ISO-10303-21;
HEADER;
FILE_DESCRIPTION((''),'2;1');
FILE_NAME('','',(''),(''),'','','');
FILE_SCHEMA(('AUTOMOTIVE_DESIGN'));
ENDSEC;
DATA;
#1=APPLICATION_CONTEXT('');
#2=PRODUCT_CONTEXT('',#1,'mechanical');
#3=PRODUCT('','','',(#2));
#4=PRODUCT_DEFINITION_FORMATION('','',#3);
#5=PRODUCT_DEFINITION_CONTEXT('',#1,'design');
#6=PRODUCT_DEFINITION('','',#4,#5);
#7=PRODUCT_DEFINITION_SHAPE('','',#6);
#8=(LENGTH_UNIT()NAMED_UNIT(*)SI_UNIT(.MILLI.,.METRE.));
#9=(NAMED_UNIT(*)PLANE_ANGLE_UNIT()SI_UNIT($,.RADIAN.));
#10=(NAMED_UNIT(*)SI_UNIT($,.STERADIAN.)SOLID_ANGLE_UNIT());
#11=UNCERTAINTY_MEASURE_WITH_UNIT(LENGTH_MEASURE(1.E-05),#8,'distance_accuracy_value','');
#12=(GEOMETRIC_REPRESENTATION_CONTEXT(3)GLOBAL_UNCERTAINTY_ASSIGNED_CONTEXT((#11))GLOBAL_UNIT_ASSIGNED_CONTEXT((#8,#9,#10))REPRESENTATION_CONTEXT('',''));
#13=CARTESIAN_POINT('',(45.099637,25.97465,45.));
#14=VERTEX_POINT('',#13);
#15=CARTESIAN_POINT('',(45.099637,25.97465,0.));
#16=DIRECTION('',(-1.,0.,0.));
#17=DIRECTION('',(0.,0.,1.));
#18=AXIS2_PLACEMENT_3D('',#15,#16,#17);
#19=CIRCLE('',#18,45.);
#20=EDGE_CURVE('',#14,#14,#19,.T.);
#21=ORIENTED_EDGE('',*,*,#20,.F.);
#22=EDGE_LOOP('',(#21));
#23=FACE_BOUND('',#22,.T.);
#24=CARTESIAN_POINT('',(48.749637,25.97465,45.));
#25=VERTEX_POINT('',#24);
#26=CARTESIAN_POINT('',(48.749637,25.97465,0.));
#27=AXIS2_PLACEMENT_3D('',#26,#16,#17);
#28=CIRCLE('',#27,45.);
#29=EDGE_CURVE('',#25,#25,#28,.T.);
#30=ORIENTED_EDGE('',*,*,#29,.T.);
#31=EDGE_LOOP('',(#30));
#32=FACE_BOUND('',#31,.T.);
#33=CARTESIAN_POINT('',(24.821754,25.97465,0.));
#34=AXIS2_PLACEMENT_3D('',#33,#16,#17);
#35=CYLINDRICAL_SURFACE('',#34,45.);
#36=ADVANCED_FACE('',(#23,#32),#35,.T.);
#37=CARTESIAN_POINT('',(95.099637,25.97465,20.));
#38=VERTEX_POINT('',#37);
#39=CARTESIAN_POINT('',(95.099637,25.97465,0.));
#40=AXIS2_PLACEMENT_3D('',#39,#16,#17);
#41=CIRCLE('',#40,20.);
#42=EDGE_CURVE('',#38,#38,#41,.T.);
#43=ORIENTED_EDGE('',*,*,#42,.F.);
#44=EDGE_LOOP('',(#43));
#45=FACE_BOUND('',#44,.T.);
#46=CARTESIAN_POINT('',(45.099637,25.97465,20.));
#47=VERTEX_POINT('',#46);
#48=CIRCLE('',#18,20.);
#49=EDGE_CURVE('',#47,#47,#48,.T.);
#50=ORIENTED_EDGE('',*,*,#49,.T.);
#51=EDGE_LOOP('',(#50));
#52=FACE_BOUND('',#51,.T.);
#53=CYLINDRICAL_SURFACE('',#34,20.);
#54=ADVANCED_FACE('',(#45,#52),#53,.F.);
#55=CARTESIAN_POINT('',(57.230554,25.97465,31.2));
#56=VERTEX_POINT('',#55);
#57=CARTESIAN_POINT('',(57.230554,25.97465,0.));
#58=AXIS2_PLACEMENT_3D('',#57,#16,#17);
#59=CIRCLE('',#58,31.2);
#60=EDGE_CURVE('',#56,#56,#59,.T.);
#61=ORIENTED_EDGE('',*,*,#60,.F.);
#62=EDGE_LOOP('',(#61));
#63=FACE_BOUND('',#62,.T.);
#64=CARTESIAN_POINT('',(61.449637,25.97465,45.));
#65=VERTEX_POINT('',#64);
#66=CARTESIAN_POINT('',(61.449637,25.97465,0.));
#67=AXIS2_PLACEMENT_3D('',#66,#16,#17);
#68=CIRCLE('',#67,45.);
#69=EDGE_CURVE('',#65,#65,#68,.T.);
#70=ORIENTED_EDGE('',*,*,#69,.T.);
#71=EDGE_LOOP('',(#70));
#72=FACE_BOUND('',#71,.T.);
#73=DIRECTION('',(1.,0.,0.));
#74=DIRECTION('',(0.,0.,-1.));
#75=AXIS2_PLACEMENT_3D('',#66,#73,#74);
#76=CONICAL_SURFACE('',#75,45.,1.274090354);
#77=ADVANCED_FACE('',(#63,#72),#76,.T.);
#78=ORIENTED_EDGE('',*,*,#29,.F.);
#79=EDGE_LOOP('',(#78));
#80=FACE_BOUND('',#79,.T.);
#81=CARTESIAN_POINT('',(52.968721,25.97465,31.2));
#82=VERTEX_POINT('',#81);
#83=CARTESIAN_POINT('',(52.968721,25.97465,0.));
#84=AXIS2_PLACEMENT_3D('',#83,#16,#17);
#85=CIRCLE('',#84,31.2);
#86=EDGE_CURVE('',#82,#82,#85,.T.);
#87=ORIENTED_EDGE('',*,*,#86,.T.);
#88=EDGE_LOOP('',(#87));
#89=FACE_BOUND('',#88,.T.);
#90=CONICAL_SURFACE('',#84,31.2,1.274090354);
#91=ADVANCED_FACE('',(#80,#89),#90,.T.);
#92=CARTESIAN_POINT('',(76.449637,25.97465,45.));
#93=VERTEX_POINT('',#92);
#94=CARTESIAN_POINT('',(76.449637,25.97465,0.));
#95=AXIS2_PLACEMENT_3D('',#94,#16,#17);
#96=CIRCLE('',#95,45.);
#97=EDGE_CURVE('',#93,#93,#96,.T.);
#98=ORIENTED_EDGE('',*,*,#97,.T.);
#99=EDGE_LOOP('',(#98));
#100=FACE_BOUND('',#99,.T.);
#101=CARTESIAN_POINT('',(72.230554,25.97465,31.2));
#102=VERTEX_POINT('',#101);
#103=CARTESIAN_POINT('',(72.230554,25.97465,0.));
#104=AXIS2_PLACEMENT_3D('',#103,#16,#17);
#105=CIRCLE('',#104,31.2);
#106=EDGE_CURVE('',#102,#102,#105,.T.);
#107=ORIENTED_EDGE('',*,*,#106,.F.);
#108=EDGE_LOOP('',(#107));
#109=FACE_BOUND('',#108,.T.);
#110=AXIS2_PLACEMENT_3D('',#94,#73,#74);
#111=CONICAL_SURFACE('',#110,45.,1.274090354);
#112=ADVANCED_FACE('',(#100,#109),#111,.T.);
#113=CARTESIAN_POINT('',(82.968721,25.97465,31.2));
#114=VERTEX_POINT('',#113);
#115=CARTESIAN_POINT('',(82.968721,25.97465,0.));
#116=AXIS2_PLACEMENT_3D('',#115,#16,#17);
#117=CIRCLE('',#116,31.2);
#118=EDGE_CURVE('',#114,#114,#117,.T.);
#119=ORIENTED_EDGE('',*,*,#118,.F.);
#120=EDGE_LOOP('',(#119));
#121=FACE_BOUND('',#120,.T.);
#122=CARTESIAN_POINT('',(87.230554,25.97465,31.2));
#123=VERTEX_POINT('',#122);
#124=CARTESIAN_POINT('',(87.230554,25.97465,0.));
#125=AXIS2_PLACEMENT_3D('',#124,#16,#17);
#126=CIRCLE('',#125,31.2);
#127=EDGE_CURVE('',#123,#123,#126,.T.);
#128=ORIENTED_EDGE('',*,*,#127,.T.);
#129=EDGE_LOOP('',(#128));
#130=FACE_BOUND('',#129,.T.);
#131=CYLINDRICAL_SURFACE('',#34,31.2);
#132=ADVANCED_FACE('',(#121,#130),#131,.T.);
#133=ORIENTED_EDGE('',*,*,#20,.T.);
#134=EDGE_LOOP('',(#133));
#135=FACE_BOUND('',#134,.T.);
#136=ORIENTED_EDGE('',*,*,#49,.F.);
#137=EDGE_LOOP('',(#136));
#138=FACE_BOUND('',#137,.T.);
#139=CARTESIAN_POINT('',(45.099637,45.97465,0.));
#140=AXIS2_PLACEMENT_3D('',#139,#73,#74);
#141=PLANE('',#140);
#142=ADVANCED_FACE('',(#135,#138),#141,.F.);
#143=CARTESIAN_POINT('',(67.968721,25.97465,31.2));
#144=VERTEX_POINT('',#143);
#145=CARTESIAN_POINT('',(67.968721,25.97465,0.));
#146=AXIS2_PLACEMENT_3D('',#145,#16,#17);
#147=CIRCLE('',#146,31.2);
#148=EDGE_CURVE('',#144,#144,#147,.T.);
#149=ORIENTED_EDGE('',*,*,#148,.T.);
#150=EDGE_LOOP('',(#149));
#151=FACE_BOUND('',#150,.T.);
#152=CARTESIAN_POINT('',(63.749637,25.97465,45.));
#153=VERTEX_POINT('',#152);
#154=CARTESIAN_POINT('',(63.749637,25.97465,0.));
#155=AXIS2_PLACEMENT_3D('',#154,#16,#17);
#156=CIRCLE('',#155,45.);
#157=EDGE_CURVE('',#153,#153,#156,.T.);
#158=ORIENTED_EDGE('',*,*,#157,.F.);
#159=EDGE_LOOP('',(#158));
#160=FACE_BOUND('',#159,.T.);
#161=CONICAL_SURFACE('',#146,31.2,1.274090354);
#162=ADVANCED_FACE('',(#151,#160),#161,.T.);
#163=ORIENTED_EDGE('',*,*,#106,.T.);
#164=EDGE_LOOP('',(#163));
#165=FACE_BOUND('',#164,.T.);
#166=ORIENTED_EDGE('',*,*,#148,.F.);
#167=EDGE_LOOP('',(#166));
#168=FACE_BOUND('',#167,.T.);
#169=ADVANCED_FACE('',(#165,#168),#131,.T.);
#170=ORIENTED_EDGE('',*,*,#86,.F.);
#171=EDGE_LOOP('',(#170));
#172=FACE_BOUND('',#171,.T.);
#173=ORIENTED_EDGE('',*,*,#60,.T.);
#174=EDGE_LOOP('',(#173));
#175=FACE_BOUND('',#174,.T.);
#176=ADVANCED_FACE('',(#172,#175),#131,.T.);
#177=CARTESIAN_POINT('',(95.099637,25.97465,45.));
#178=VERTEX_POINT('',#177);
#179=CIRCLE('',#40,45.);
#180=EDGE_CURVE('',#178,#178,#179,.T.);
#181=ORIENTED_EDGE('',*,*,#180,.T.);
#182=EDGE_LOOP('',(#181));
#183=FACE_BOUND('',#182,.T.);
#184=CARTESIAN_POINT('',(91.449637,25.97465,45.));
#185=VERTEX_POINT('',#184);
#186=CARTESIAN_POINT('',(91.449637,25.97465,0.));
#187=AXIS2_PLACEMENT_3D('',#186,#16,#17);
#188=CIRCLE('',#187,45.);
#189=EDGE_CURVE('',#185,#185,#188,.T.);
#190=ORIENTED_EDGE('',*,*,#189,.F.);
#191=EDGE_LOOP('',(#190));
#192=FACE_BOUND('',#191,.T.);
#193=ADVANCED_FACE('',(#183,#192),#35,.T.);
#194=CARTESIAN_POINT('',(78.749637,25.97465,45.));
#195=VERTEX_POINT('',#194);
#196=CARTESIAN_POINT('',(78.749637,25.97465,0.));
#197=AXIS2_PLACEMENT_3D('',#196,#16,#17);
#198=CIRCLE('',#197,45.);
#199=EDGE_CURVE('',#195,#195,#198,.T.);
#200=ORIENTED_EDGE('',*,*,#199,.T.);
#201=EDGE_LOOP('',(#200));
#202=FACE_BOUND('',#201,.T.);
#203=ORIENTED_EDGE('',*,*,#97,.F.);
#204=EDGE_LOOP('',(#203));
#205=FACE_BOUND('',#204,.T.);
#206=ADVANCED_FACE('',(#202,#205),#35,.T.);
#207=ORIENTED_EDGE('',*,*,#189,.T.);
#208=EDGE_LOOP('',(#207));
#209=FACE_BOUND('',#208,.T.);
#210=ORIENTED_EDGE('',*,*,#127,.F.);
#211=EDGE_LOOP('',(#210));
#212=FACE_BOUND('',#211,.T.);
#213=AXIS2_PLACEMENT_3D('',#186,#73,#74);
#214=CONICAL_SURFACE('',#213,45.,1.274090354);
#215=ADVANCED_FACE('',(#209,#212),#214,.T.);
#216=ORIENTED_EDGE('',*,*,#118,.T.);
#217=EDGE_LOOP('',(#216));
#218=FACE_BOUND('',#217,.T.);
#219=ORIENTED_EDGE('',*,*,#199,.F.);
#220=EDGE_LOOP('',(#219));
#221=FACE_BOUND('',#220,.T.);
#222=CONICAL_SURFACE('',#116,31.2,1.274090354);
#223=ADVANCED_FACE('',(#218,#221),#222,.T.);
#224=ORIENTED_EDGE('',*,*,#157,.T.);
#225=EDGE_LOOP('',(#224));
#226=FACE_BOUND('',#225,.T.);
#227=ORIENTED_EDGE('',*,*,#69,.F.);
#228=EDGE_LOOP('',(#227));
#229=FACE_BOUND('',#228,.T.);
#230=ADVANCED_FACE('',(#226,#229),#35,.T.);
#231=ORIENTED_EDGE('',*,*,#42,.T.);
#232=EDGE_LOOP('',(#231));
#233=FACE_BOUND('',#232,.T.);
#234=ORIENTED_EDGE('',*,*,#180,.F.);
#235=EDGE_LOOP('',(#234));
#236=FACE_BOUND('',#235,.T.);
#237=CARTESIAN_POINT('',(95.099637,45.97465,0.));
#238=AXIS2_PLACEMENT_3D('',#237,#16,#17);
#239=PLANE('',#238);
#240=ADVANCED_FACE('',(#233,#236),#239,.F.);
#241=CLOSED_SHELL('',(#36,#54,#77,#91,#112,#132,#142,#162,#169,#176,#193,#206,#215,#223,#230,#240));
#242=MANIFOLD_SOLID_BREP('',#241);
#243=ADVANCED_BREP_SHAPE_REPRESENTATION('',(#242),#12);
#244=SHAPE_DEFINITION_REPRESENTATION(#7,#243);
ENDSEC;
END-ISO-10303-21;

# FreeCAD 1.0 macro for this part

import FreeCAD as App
import Part
import Sketcher
from FreeCAD import Vector
Q = App.Units.Quantity


def add_polygon(sketch, points):
    """Adds a closed chain of lines whose ends are joined by coincident constraints."""
    first, n = sketch.GeometryCount, len(points)
    for a, b in zip(points, points[1:] + points[:1]):
        sketch.addGeometry(Part.LineSegment(App.Vector(*a, 0), App.Vector(*b, 0)), False)
    for i in range(n):
        sketch.addConstraint(Sketcher.Constraint("Coincident", first + i, 2, first + (i + 1) % n, 1))

doc = App.newDocument("Part")
body = doc.addObject("PartDesign::Body", "Body")

# Sketch on XY plane
sketch1 = doc.addObject("Sketcher::SketchObject", "Sketch")
body.addObject(sketch1)
sketch1.AttachmentSupport = (doc.XY_Plane, [""])
sketch1.MapMode = "FlatFace"
add_polygon(sketch1, [(45.1, 46), (95.1, 46), (95.1, 71), (91.4, 71), (87.2, 57.2), (83, 57.2), (78.7, 71), (76.4, 71), (72.2, 57.2), (68, 57.2), (63.7, 71), (61.4, 71), (57.2, 57.2), (53, 57.2), (48.7, 71), (45.1, 71)])  # lines 0-15
sketch1.addGeometry(Part.LineSegment(Vector(45.1, 26, 0), Vector(95.1, 26, 0)), True)  # axis
sketch1.addConstraint(Sketcher.Constraint("Horizontal", 0))
sketch1.addConstraint(Sketcher.Constraint("Vertical", 1))
sketch1.addConstraint(Sketcher.Constraint("Horizontal", 2))
sketch1.addConstraint(Sketcher.Constraint("Horizontal", 4))
sketch1.addConstraint(Sketcher.Constraint("Horizontal", 6))
sketch1.addConstraint(Sketcher.Constraint("Horizontal", 8))
sketch1.addConstraint(Sketcher.Constraint("Horizontal", 10))
sketch1.addConstraint(Sketcher.Constraint("Horizontal", 12))
sketch1.addConstraint(Sketcher.Constraint("Horizontal", 14))
sketch1.addConstraint(Sketcher.Constraint("Vertical", 15))
sketch1.addConstraint(Sketcher.Constraint("Horizontal", 16))
sketch1.addConstraint(Sketcher.Constraint("Parallel", 3, 7))
sketch1.addConstraint(Sketcher.Constraint("Parallel", 5, 9))
sketch1.addConstraint(Sketcher.Constraint("Parallel", 7, 11))
sketch1.addConstraint(Sketcher.Constraint("Parallel", 9, 13))
sketch1.addConstraint(Sketcher.Constraint("Horizontal", 2, 2, 5, 2))
sketch1.addConstraint(Sketcher.Constraint("Horizontal", 4, 2, 7, 2))
sketch1.addConstraint(Sketcher.Constraint("Horizontal", 6, 2, 9, 2))
sketch1.addConstraint(Sketcher.Constraint("Horizontal", 8, 2, 11, 2))
sketch1.addConstraint(Sketcher.Constraint("Horizontal", 10, 2, 13, 2))
sketch1.addConstraint(Sketcher.Constraint("Vertical", 15, 2, 16, 1))
sketch1.addConstraint(Sketcher.Constraint("Vertical", 1, 2, 16, 2))
sketch1.addConstraint(Sketcher.Constraint("Equal", 4, 8))
sketch1.addConstraint(Sketcher.Constraint("Equal", 6, 10))
sketch1.addConstraint(Sketcher.Constraint("Equal", 8, 12))
sketch1.addConstraint(Sketcher.Constraint("Equal", 2, 14))
sketch1.addConstraint(Sketcher.Constraint("Equal", 3, 5))
sketch1.addConstraint(Sketcher.Constraint("DistanceX", 0, 1, 0, 2, Q("50 mm")))
sketch1.addConstraint(Sketcher.Constraint("DistanceY", 1, 1, 1, 2, Q("25 mm")))
sketch1.addConstraint(Sketcher.Constraint("Angle", 3, Q("-107 deg")))
sketch1.addConstraint(Sketcher.Constraint("DistanceX", 6, 2, 6, 1, Q("2.3 mm")))
sketch1.addConstraint(Sketcher.Constraint("DistanceX", 6, 2, 2, 2, Q("15 mm")))
sketch1.addConstraint(Sketcher.Constraint("DistanceY", 16, 1, 15, 2, Q("20 mm")))
sketch1.addConstraint(Sketcher.Constraint("DistanceY", 0, 2, 3, 2, Q("11.2 mm")))
sketch1.addConstraint(Sketcher.Constraint("DistanceY", -1, 1, 0, 2, Q("45.97465 mm")))
sketch1.addConstraint(Sketcher.Constraint("DistanceX", -1, 1, 4, 2, Q("82.968721 mm")))
revolution = doc.addObject("PartDesign::Revolution", "Revolution")
body.addObject(revolution)
revolution.Profile = sketch1
revolution.ReferenceAxis = (sketch1, ["Axis0"])
revolution.Angle = 360

doc.recompute()
